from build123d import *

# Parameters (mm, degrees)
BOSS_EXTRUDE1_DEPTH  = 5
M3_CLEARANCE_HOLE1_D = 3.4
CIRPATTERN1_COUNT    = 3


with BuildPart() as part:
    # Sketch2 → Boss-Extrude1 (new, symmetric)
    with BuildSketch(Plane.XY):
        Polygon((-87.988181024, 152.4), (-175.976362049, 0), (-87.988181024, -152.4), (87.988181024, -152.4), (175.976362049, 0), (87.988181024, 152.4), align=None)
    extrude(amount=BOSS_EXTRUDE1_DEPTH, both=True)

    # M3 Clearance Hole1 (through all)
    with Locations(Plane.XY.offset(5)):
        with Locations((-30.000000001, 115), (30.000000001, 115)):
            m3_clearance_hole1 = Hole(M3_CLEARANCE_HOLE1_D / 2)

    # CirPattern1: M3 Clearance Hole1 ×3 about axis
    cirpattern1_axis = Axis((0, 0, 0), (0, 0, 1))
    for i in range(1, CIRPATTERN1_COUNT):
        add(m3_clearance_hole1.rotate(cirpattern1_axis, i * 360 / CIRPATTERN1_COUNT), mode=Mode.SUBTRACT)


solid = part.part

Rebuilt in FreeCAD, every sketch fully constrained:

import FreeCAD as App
import Part
import Sketcher
Q = App.Units.Quantity

doc = App.newDocument("Part")
body = doc.addObject("PartDesign::Body", "Body")

# Sketch on XY plane
sketch1 = body.newObject("Sketcher::SketchObject", "Sketch")
sketch1.AttachmentSupport = (doc.getObject("XY_Plane"), [""])
sketch1.MapMode = "FlatFace"
sketch1.addGeometry([
    Part.LineSegment(App.Vector(-87.988181, 152.4, 0), App.Vector(-175.976362, 0, 0)),  # 0
    Part.LineSegment(App.Vector(-175.976362, 0, 0), App.Vector(-87.988181, -152.4, 0)),  # 1
    Part.LineSegment(App.Vector(-87.988181, -152.4, 0), App.Vector(87.988181, -152.4, 0)),  # 2
    Part.LineSegment(App.Vector(87.988181, -152.4, 0), App.Vector(175.976362, 0, 0)),  # 3
    Part.LineSegment(App.Vector(175.976362, 0, 0), App.Vector(87.988181, 152.4, 0)),  # 4
    Part.LineSegment(App.Vector(87.988181, 152.4, 0), App.Vector(-87.988181, 152.4, 0)),  # 5
], False)
sketch1.addConstraint([
    Sketcher.Constraint("Coincident", 0, 2, 1, 1),
    Sketcher.Constraint("Coincident", 1, 2, 2, 1),
    Sketcher.Constraint("Coincident", 2, 2, 3, 1),
    Sketcher.Constraint("Coincident", 3, 2, 4, 1),
    Sketcher.Constraint("Coincident", 4, 2, 5, 1),
    Sketcher.Constraint("Coincident", 5, 2, 0, 1),
    Sketcher.Constraint("Horizontal", 2),
    Sketcher.Constraint("Horizontal", 5),
    Sketcher.Constraint("Symmetric", 0, 2, 3, 2, -1, 1),
    Sketcher.Constraint("Symmetric", 1, 2, 4, 2, -1, 1),
    Sketcher.Constraint("PointOnObject", 0, 2, -1),
    Sketcher.Constraint("Parallel", 0, 3),
    Sketcher.Constraint("Vertical", 2, 2, 4, 2),
    Sketcher.Constraint("Angle", 0, Q("-120 deg")),
    Sketcher.Constraint("DistanceY", 1, 2, -1, 1, Q("152.4 mm")),
    Sketcher.Constraint("DistanceX", 2, 1, 2, 2, Q("175.976362 mm")),
])
pad1 = body.newObject("PartDesign::Pad", "Pad")
pad1.Profile = sketch1
pad1.Length = 10
pad1.Midplane = True

# Sketch on XY plane
sketch2 = body.newObject("Sketcher::SketchObject", "Sketch001")
sketch2.AttachmentSupport = (doc.getObject("XY_Plane"), [""])
sketch2.MapMode = "FlatFace"
sketch2.AttachmentOffset = App.Placement(App.Vector(0, 0, 5), App.Rotation())
sketch2.addGeometry([
    Part.Circle(App.Vector(-30, 115, 0), App.Vector(0, 0, 1), 1.7),
    Part.Circle(App.Vector(30, 115, 0), App.Vector(0, 0, 1), 1.7),
], False)
sketch2.addConstraint([
    Sketcher.Constraint("Equal", 0, 1),
    Sketcher.Constraint("Symmetric", 0, 3, 1, 3, -2),
    Sketcher.Constraint("Diameter", 0, Q("3.4 mm")),
    Sketcher.Constraint("DistanceX", 0, 3, -1, 1, Q("30 mm")),
    Sketcher.Constraint("DistanceY", -1, 1, 0, 3, Q("115 mm")),
])
doc.recompute()
hole = body.newObject("PartDesign::Hole", "Hole")
hole.Profile = sketch2
hole.ThreadType = "None"
hole.Diameter = 3.4
hole.DepthType = "ThroughAll"
doc.recompute()

polarpattern = body.newObject("PartDesign::PolarPattern", "PolarPattern")
polarpattern.Originals = [hole]
polarpattern.Axis = (doc.getObject("Z_Axis"), [""])
polarpattern.Angle = 360
polarpattern.Occurrences = 3
body.Tip = polarpattern

doc.recompute()
